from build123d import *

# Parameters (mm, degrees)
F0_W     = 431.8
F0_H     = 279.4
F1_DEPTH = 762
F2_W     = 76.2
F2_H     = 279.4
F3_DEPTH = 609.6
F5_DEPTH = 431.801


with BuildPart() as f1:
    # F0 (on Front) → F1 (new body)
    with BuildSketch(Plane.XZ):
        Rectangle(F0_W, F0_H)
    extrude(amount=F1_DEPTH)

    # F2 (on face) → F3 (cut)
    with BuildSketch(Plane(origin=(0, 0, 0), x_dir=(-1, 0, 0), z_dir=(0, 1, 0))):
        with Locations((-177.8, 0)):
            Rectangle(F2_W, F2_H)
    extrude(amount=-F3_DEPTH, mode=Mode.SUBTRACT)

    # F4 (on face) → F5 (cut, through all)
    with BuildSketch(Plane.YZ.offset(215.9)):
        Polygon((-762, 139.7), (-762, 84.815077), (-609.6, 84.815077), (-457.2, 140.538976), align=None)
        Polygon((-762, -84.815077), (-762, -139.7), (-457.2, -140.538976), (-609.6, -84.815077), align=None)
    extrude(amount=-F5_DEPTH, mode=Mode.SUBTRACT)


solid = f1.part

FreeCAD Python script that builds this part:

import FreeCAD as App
import Part
import Sketcher
Q = App.Units.Quantity


def add_polygon(sketch, points):
    """Adds a closed chain of lines whose ends are joined by coincident constraints."""
    first, n = sketch.GeometryCount, len(points)
    for a, b in zip(points, points[1:] + points[:1]):
        sketch.addGeometry(Part.LineSegment(App.Vector(*a, 0), App.Vector(*b, 0)), False)
    for i in range(n):
        sketch.addConstraint(Sketcher.Constraint("Coincident", first + i, 2, first + (i + 1) % n, 1))

doc = App.newDocument("Part")
body = doc.addObject("PartDesign::Body", "Body")

sketch1 = body.newObject("Sketcher::SketchObject", "Sketch")
sketch1.AttachmentSupport = (doc.getObject("XZ_Plane"), [""])
sketch1.MapMode = "FlatFace"
add_polygon(sketch1, [(-216, 140), (-216, -140), (216, -140), (216, 140)])
sketch1.addConstraint([
    Sketcher.Constraint("Vertical", 0),
    Sketcher.Constraint("Horizontal", 1),
    Sketcher.Constraint("Vertical", 2),
    Sketcher.Constraint("Horizontal", 3),
    Sketcher.Constraint("Symmetric", 0, 2, 2, 2, -1, 1),
    Sketcher.Constraint("DistanceX", 1, 1, 1, 2, Q("17 in")),
    Sketcher.Constraint("DistanceY", 0, 2, 0, 1, Q("11 in")),
])
pad1 = body.newObject("PartDesign::Pad", "Pad")
pad1.Profile = sketch1
pad1.Length = Q("30 in")

sketch2 = body.newObject("Sketcher::SketchObject", "Sketch001")
sketch2.AttachmentSupport = (doc.getObject("XZ_Plane"), [""])
sketch2.MapMode = "FlatFace"
add_polygon(sketch2, [(216, 140), (216, -140), (140, -140), (140, 140)])
sketch2.addConstraint([
    Sketcher.Constraint("Vertical", 0),
    Sketcher.Constraint("Horizontal", 1),
    Sketcher.Constraint("Vertical", 2),
    Sketcher.Constraint("Horizontal", 3),
    Sketcher.Constraint("DistanceX", 1, 2, 1, 1, Q("3 in")),
    Sketcher.Constraint("DistanceY", 0, 2, 0, 1, Q("11 in")),
    Sketcher.Constraint("DistanceX", -1, 1, 0, 2, Q("8.5 in")),
    Sketcher.Constraint("DistanceY", 0, 2, -1, 1, Q("5.5 in")),
])
pocket1 = body.newObject("PartDesign::Pocket", "Pocket")
pocket1.Profile = sketch2
pocket1.Length = Q("24 in")
pocket1.Reversed = True

sketch3 = body.newObject("Sketcher::SketchObject", "Sketch002")
sketch3.AttachmentSupport = (doc.getObject("YZ_Plane"), [""])
sketch3.MapMode = "FlatFace"
sketch3.AttachmentOffset = App.Placement(App.Vector(0, 0, 8.5 * 25.4), App.Rotation())
add_polygon(sketch3, [(-762, 140), (-762, 85), (-610, 85), (-457, 141)])
add_polygon(sketch3, [(-762, -85), (-762, -140), (-457, -141), (-610, -85)])
sketch3.addConstraint([
    Sketcher.Constraint("Vertical", 0),
    Sketcher.Constraint("Horizontal", 1),
    Sketcher.Constraint("Vertical", 4),
    Sketcher.Constraint("Horizontal", 7),
    Sketcher.Constraint("Symmetric", 3, 2, 4, 2, -1),
    Sketcher.Constraint("Symmetric", 2, 2, 5, 2, -1),
    Sketcher.Constraint("Symmetric", 1, 2, 6, 2, -1),
    Sketcher.Constraint("DistanceX", 1, 1, 1, 2, Q("6 in")),
    Sketcher.Constraint("DistanceX", 0, 2, -1, 1, Q("30 in")),
    Sketcher.Constraint("DistanceX", 2, 2, -1, 1, Q("18 in")),
    Sketcher.Constraint("DistanceY", 4, 2, 3, 2, Q("11 in")),
    Sketcher.Constraint("DistanceY", 1, 2, 2, 2, 55.723899),
    Sketcher.Constraint("DistanceY", 0, 2, 0, 1, 54.884923),
])
pocket2 = body.newObject("PartDesign::Pocket", "Pocket001")
pocket2.Profile = sketch3
pocket2.Type = "ThroughAll"

doc.recompute()
